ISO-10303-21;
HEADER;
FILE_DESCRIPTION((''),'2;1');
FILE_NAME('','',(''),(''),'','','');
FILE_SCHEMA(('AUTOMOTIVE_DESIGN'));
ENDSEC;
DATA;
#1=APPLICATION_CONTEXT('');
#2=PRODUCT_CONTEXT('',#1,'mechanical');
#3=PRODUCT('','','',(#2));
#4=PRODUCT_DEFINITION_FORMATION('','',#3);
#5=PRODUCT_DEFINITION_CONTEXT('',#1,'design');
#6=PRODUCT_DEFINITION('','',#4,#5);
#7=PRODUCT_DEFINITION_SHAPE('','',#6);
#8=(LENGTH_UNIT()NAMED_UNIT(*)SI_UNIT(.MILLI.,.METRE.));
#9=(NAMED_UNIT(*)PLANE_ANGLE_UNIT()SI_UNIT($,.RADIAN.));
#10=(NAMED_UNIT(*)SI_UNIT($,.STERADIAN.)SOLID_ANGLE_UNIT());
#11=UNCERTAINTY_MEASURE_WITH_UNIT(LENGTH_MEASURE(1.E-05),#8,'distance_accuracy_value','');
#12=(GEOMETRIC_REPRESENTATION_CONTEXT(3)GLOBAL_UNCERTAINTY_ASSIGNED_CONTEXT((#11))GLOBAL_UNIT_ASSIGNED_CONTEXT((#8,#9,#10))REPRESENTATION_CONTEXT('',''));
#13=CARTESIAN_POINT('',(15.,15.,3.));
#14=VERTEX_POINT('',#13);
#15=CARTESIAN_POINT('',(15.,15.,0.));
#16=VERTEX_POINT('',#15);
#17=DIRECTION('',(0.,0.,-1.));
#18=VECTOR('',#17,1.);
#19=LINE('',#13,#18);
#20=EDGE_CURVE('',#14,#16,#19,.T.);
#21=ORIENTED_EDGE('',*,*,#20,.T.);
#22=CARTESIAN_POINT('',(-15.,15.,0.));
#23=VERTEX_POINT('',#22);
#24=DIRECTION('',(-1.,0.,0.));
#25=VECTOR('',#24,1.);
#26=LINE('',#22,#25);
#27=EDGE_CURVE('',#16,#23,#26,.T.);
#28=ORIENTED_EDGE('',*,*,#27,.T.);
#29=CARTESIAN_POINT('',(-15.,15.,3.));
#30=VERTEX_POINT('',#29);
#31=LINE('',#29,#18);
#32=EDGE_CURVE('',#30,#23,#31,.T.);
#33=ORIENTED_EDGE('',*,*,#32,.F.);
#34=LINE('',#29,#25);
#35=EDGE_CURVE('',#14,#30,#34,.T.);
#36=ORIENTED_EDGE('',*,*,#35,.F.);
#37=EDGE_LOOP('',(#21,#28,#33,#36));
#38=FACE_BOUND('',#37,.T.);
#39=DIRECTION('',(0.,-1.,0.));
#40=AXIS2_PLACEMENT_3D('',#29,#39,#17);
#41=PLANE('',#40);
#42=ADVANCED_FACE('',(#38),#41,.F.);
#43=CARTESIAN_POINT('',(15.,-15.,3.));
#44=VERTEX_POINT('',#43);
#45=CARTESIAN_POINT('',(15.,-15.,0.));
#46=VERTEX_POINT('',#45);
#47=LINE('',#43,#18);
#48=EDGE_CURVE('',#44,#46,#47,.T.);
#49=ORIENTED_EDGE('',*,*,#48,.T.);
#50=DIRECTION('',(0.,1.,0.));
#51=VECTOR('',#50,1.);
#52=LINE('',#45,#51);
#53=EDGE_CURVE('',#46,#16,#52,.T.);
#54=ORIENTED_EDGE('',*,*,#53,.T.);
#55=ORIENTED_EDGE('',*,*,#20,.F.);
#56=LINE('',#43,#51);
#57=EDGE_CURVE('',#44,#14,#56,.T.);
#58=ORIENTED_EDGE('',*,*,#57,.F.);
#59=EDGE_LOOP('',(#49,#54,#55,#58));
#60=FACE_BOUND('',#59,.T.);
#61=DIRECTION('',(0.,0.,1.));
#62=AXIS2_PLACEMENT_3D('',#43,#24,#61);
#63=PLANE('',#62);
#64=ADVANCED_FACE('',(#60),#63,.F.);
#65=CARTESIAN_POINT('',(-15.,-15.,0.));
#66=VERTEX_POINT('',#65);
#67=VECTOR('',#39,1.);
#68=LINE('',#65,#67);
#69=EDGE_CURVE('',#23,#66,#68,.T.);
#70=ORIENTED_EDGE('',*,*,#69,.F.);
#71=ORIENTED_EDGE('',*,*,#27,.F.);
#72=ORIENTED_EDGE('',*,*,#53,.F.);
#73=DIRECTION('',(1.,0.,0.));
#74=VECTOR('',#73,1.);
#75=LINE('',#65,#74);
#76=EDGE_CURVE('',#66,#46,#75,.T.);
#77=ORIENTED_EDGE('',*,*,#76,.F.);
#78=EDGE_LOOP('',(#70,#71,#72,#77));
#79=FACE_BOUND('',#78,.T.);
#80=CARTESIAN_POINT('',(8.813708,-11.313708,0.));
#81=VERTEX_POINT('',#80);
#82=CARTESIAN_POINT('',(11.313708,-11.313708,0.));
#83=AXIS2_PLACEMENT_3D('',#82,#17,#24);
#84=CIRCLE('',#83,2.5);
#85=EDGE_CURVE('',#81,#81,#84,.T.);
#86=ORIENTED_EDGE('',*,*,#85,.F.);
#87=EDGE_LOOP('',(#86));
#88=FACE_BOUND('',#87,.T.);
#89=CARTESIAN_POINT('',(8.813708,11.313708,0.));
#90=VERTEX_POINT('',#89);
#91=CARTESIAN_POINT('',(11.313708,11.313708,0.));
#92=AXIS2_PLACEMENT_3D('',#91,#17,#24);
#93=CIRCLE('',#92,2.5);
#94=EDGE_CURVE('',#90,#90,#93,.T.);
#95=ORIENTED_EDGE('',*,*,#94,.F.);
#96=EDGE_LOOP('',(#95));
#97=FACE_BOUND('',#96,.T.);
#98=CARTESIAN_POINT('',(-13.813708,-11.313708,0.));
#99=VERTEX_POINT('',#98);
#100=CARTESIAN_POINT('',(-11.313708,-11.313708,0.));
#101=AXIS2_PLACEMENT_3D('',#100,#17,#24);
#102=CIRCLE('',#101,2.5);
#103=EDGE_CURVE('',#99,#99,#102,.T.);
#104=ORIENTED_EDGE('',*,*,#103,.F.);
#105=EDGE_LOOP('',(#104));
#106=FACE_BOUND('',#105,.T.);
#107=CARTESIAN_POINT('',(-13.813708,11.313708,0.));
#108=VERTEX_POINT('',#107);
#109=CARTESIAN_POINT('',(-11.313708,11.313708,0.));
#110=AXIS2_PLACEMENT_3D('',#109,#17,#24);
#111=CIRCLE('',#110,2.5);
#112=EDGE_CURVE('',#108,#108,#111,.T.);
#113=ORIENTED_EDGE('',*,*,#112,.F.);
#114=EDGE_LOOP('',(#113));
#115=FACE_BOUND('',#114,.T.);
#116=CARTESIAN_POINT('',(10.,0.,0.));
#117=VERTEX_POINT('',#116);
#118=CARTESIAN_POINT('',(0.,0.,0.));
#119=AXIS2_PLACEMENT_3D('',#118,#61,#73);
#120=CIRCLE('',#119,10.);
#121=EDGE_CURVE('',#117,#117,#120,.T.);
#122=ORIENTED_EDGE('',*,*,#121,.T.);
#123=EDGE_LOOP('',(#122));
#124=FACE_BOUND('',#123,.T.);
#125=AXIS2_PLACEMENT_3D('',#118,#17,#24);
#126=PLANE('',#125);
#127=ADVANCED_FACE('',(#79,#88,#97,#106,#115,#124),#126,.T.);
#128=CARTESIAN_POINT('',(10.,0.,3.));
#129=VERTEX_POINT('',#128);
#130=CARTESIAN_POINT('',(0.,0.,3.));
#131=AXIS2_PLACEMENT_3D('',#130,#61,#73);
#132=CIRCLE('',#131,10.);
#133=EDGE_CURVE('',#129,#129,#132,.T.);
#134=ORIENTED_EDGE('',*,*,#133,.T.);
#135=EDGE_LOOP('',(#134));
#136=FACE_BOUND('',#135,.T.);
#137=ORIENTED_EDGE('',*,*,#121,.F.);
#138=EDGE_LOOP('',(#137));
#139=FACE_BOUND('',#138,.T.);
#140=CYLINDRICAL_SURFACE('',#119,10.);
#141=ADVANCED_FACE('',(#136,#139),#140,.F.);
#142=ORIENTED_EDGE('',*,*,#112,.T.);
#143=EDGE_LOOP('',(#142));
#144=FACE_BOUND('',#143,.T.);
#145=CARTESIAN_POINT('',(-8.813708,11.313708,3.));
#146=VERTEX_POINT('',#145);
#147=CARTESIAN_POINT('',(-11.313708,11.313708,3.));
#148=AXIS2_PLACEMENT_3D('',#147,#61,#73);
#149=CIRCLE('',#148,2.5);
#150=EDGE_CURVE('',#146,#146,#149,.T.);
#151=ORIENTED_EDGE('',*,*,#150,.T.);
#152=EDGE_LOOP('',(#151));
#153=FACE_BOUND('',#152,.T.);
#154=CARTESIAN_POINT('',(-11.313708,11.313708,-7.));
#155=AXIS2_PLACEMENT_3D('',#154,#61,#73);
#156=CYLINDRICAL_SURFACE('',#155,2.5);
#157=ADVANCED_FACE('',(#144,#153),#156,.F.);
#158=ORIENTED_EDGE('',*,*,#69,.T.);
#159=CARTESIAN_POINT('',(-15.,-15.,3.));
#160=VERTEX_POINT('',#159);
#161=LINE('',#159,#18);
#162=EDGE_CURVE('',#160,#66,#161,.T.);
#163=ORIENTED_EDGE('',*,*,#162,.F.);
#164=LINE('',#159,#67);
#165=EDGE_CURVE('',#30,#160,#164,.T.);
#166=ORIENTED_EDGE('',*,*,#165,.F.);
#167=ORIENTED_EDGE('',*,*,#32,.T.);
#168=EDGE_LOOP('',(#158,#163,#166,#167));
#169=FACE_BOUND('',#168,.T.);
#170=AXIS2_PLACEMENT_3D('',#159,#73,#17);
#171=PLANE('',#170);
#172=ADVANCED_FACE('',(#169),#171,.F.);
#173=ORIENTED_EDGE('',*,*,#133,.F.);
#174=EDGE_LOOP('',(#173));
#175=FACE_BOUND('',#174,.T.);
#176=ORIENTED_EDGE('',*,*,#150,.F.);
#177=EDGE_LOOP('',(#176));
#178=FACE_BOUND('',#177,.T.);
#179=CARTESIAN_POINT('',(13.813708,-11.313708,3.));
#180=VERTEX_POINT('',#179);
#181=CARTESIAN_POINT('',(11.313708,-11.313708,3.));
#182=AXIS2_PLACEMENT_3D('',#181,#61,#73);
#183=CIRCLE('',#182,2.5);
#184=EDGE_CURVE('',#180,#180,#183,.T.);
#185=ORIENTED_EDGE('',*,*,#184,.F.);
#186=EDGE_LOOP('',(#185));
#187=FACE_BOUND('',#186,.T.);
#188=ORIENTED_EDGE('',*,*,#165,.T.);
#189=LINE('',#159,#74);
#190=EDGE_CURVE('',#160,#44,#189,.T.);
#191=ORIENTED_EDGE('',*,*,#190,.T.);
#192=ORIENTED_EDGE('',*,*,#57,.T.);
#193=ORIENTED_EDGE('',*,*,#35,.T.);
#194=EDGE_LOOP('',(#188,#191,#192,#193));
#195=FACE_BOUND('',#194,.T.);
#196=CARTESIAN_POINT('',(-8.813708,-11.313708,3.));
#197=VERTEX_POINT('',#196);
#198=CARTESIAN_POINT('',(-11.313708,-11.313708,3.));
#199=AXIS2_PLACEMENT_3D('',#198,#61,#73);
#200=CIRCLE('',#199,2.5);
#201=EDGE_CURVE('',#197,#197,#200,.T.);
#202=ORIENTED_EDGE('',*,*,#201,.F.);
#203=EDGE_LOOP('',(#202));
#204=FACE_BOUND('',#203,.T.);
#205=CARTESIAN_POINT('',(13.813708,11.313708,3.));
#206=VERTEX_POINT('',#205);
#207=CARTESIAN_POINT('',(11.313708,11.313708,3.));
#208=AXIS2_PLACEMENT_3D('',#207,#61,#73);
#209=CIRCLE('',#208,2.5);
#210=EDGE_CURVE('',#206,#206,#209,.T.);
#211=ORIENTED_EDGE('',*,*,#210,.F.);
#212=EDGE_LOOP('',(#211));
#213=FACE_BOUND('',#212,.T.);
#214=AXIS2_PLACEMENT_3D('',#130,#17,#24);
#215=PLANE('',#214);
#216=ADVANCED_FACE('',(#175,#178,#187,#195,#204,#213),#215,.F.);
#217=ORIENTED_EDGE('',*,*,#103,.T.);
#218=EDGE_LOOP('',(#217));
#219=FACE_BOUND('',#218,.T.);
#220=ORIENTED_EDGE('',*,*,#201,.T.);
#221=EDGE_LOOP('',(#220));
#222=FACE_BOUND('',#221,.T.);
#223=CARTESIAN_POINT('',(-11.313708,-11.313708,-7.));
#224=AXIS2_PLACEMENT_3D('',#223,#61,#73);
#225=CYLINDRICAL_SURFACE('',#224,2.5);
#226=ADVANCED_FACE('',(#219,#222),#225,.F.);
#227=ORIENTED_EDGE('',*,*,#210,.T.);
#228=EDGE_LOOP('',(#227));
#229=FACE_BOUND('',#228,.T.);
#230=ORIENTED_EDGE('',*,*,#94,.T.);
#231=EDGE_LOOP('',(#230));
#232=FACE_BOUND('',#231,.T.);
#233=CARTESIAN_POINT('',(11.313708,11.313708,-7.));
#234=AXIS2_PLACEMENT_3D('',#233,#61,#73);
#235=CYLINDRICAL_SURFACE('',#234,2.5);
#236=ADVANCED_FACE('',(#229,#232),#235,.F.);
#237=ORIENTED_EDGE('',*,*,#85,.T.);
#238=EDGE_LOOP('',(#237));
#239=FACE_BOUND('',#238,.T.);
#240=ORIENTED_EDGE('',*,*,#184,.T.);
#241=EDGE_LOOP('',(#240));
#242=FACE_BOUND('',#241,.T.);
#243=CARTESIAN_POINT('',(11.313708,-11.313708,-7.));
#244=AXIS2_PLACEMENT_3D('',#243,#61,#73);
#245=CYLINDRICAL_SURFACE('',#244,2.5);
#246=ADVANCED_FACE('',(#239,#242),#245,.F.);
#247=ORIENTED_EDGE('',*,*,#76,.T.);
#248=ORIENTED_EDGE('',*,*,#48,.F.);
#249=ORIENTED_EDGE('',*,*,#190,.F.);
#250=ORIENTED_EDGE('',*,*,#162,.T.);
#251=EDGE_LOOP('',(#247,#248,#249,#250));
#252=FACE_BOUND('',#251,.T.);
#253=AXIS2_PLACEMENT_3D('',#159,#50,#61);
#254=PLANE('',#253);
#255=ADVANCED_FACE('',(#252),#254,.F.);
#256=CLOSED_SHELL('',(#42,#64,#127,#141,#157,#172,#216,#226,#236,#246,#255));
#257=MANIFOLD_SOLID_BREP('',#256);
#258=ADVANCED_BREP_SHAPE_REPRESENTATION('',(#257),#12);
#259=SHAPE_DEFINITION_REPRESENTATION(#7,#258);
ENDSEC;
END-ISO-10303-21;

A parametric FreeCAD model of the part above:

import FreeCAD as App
import Part
import Sketcher
from FreeCAD import Vector

doc = App.newDocument("Part")
body = doc.addObject("PartDesign::Body", "Body")

# Sketch on XY plane
sketch1 = doc.addObject("Sketcher::SketchObject", "Sketch")
body.addObject(sketch1)
sketch1.AttachmentSupport = (doc.XY_Plane, [""])
sketch1.MapMode = "FlatFace"
sketch1.addGeometry(Part.LineSegment(Vector(-15, 15, 0), Vector(-15, -15, 0)), False)
sketch1.addGeometry(Part.LineSegment(Vector(-15, -15, 0), Vector(15, -15, 0)), False)
sketch1.addGeometry(Part.LineSegment(Vector(15, -15, 0), Vector(15, 15, 0)), False)
sketch1.addGeometry(Part.LineSegment(Vector(15, 15, 0), Vector(-15, 15, 0)), False)
sketch1.addConstraint(Sketcher.Constraint("Coincident", 0, 2, 1, 1))
sketch1.addConstraint(Sketcher.Constraint("Coincident", 1, 2, 2, 1))
sketch1.addConstraint(Sketcher.Constraint("Coincident", 2, 2, 3, 1))
sketch1.addConstraint(Sketcher.Constraint("Coincident", 3, 2, 0, 1))
sketch1.addConstraint(Sketcher.Constraint("Vertical", 0))
sketch1.addConstraint(Sketcher.Constraint("Horizontal", 1))
sketch1.addConstraint(Sketcher.Constraint("Vertical", 2))
sketch1.addConstraint(Sketcher.Constraint("Horizontal", 3))
sketch1.addConstraint(Sketcher.Constraint("Symmetric", 0, 2, 2, 2, -1, 1))
sketch1.addConstraint(Sketcher.Constraint("Equal", 3, 0))
sketch1.addConstraint(Sketcher.Constraint("DistanceX", 1, 1, 1, 2, 30.0))
pad1 = doc.addObject("PartDesign::Pad", "Pad")
body.addObject(pad1)
pad1.Profile = sketch1
pad1.Length = 3

# Sketch on XY plane
sketch2 = doc.addObject("Sketcher::SketchObject", "Sketch001")
body.addObject(sketch2)
sketch2.AttachmentSupport = (doc.XY_Plane, [""])
sketch2.MapMode = "FlatFace"
sketch2.AttachmentOffset = App.Placement(Vector(0, 0, 3), App.Rotation())
sketch2.addGeometry(Part.Circle(Vector(0, 0, 0), Vector(0, 0, 1), 10), False)
sketch2.addConstraint(Sketcher.Constraint("Coincident", 0, 3, -1, 1))
sketch2.addConstraint(Sketcher.Constraint("Diameter", 0, 20.0))
pocket1 = doc.addObject("PartDesign::Pocket", "Pocket")
body.addObject(pocket1)
pocket1.Profile = sketch2
pocket1.Length = 3

# Sketch on XY plane
sketch3 = doc.addObject("Sketcher::SketchObject", "Sketch002")
body.addObject(sketch3)
sketch3.AttachmentSupport = (doc.XY_Plane, [""])
sketch3.MapMode = "FlatFace"
sketch3.AttachmentOffset = App.Placement(Vector(0, 0, 3), App.Rotation())
sketch3.addGeometry(Part.Circle(Vector(-11.3, 11.3, 0), Vector(0, 0, 1), 2.5), False)
sketch3.addGeometry(Part.Circle(Vector(11.3, 11.3, 0), Vector(0, 0, 1), 2.5), False)
sketch3.addGeometry(Part.Circle(Vector(11.3, -11.3, 0), Vector(0, 0, 1), 2.5), False)
sketch3.addGeometry(Part.Circle(Vector(-11.3, -11.3, 0), Vector(0, 0, 1), 2.5), False)
sketch3.addConstraint(Sketcher.Constraint("Equal", 0, 1))
sketch3.addConstraint(Sketcher.Constraint("Equal", 1, 2))
sketch3.addConstraint(Sketcher.Constraint("Equal", 2, 3))
sketch3.addConstraint(Sketcher.Constraint("Symmetric", 0, 3, 2, 3, -1, 1))
sketch3.addConstraint(Sketcher.Constraint("Symmetric", 1, 3, 3, 3, -1, 1))
sketch3.addConstraint(Sketcher.Constraint("Symmetric", 0, 3, 1, 3, -2))
sketch3.addConstraint(Sketcher.Constraint("Diameter", 0, 5.0))
sketch3.addConstraint(Sketcher.Constraint("DistanceX", 0, 3, -1, 1, 11.313708))
sketch3.addConstraint(Sketcher.Constraint("DistanceY", -1, 1, 0, 3, 11.313708))
pocket2 = doc.addObject("PartDesign::Pocket", "Pocket001")
body.addObject(pocket2)
pocket2.Profile = sketch3
pocket2.Length = 10

doc.recompute()
